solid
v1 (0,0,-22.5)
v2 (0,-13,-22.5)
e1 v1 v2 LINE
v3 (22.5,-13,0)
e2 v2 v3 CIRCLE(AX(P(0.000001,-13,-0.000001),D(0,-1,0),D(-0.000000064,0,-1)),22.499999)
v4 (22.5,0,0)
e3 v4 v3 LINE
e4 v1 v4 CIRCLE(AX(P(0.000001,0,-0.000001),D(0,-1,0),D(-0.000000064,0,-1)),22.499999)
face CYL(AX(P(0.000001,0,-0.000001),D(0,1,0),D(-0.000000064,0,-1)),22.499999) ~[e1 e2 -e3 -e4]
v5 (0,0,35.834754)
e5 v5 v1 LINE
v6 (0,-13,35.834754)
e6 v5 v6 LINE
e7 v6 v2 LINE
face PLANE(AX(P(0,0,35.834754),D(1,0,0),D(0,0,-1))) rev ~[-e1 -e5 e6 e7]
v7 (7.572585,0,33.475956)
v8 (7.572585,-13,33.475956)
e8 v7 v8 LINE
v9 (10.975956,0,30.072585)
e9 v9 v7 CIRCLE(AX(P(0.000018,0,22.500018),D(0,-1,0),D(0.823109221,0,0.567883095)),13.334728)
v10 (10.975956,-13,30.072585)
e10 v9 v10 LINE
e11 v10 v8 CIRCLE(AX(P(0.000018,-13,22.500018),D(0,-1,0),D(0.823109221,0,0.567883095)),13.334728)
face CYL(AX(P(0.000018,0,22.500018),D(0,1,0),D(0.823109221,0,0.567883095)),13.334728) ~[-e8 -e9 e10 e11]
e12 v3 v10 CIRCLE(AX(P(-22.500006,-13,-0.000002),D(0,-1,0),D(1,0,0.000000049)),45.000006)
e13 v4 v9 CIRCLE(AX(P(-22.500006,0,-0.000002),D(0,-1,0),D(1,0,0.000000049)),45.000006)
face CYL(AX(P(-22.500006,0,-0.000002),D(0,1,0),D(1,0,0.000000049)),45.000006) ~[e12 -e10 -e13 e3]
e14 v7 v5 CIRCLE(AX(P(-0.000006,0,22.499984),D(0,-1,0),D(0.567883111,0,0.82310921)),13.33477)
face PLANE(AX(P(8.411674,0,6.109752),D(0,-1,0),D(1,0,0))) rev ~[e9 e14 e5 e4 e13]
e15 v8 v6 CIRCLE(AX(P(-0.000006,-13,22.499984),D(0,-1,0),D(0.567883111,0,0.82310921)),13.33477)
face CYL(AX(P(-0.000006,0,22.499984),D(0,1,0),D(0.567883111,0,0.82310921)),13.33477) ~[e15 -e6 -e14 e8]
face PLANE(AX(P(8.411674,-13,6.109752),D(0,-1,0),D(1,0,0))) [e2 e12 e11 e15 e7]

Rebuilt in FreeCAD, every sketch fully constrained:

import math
import FreeCAD as App
import Part
import Sketcher

V = App.Vector

doc = App.newDocument("Part")
body = doc.addObject("PartDesign::Body", "Body")

# Sketch on XZ plane
sketch1 = body.newObject("Sketcher::SketchObject", "Sketch")
sketch1.AttachmentSupport = (doc.getObject("XZ_Plane"), [""])
sketch1.MapMode = "FlatFace"
sketch1.addGeometry([
    Part.LineSegment(V(0, 35.834754, 0), V(0, -22.5, 0)),  # 0
    Part.ArcOfCircle(Part.Circle(V(0.000001, -0.000001, 0), V(0, 0, 1), 22.499999), math.radians(-90.000004), math.radians(0.000004)),  # 1
    Part.ArcOfCircle(Part.Circle(V(-22.500006, -0.000002, 0), V(0, 0, 1), 45.000006), math.radians(0.000003), math.radians(41.934424)),  # 2
    Part.ArcOfCircle(Part.Circle(V(0.000018, 22.500018, 0), V(0, 0, 1), 13.334728), math.radians(34.602739), math.radians(55.397261)),  # 3
    Part.ArcOfCircle(Part.Circle(V(-0.000006, 22.499984, 0), V(0, 0, 1), 13.33477), math.radians(55.39726), math.radians(89.999976)),  # 4
], False)
sketch1.addConstraint([
    Sketcher.Constraint("Coincident", 0, 2, 1, 1),
    Sketcher.Constraint("Tangent", 1, 2, 2, 1),
    Sketcher.Constraint("Coincident", 2, 2, 3, 1),
    Sketcher.Constraint("Tangent", 3, 2, 4, 1),
    Sketcher.Constraint("Coincident", 4, 2, 0, 1),
    Sketcher.Constraint("Vertical", 0),
    Sketcher.Constraint("Coincident", 1, 3, -1, 1),
    Sketcher.Constraint("PointOnObject", 0, 2, -2),
    Sketcher.Constraint("PointOnObject", 1, 2, -1),
    Sketcher.Constraint("Radius", 1, 22.499999),
    Sketcher.Constraint("DistanceX", 2, 3, 4, 3, 22.5),
    Sketcher.Constraint("Radius", 3, 13.334728),
    Sketcher.Constraint("Radius", 4, 13.33477),
    Sketcher.Constraint("Radius", 2, 45.000006),
    Sketcher.Constraint("DistanceY", 4, 3, 2, 2, 7.572601),
    Sketcher.Constraint("DistanceX", 3, 2, 2, 2, 3.403371),
])
pad1 = body.newObject("PartDesign::Pad", "Pad")
pad1.Profile = sketch1
pad1.Length = 13

doc.recompute()
